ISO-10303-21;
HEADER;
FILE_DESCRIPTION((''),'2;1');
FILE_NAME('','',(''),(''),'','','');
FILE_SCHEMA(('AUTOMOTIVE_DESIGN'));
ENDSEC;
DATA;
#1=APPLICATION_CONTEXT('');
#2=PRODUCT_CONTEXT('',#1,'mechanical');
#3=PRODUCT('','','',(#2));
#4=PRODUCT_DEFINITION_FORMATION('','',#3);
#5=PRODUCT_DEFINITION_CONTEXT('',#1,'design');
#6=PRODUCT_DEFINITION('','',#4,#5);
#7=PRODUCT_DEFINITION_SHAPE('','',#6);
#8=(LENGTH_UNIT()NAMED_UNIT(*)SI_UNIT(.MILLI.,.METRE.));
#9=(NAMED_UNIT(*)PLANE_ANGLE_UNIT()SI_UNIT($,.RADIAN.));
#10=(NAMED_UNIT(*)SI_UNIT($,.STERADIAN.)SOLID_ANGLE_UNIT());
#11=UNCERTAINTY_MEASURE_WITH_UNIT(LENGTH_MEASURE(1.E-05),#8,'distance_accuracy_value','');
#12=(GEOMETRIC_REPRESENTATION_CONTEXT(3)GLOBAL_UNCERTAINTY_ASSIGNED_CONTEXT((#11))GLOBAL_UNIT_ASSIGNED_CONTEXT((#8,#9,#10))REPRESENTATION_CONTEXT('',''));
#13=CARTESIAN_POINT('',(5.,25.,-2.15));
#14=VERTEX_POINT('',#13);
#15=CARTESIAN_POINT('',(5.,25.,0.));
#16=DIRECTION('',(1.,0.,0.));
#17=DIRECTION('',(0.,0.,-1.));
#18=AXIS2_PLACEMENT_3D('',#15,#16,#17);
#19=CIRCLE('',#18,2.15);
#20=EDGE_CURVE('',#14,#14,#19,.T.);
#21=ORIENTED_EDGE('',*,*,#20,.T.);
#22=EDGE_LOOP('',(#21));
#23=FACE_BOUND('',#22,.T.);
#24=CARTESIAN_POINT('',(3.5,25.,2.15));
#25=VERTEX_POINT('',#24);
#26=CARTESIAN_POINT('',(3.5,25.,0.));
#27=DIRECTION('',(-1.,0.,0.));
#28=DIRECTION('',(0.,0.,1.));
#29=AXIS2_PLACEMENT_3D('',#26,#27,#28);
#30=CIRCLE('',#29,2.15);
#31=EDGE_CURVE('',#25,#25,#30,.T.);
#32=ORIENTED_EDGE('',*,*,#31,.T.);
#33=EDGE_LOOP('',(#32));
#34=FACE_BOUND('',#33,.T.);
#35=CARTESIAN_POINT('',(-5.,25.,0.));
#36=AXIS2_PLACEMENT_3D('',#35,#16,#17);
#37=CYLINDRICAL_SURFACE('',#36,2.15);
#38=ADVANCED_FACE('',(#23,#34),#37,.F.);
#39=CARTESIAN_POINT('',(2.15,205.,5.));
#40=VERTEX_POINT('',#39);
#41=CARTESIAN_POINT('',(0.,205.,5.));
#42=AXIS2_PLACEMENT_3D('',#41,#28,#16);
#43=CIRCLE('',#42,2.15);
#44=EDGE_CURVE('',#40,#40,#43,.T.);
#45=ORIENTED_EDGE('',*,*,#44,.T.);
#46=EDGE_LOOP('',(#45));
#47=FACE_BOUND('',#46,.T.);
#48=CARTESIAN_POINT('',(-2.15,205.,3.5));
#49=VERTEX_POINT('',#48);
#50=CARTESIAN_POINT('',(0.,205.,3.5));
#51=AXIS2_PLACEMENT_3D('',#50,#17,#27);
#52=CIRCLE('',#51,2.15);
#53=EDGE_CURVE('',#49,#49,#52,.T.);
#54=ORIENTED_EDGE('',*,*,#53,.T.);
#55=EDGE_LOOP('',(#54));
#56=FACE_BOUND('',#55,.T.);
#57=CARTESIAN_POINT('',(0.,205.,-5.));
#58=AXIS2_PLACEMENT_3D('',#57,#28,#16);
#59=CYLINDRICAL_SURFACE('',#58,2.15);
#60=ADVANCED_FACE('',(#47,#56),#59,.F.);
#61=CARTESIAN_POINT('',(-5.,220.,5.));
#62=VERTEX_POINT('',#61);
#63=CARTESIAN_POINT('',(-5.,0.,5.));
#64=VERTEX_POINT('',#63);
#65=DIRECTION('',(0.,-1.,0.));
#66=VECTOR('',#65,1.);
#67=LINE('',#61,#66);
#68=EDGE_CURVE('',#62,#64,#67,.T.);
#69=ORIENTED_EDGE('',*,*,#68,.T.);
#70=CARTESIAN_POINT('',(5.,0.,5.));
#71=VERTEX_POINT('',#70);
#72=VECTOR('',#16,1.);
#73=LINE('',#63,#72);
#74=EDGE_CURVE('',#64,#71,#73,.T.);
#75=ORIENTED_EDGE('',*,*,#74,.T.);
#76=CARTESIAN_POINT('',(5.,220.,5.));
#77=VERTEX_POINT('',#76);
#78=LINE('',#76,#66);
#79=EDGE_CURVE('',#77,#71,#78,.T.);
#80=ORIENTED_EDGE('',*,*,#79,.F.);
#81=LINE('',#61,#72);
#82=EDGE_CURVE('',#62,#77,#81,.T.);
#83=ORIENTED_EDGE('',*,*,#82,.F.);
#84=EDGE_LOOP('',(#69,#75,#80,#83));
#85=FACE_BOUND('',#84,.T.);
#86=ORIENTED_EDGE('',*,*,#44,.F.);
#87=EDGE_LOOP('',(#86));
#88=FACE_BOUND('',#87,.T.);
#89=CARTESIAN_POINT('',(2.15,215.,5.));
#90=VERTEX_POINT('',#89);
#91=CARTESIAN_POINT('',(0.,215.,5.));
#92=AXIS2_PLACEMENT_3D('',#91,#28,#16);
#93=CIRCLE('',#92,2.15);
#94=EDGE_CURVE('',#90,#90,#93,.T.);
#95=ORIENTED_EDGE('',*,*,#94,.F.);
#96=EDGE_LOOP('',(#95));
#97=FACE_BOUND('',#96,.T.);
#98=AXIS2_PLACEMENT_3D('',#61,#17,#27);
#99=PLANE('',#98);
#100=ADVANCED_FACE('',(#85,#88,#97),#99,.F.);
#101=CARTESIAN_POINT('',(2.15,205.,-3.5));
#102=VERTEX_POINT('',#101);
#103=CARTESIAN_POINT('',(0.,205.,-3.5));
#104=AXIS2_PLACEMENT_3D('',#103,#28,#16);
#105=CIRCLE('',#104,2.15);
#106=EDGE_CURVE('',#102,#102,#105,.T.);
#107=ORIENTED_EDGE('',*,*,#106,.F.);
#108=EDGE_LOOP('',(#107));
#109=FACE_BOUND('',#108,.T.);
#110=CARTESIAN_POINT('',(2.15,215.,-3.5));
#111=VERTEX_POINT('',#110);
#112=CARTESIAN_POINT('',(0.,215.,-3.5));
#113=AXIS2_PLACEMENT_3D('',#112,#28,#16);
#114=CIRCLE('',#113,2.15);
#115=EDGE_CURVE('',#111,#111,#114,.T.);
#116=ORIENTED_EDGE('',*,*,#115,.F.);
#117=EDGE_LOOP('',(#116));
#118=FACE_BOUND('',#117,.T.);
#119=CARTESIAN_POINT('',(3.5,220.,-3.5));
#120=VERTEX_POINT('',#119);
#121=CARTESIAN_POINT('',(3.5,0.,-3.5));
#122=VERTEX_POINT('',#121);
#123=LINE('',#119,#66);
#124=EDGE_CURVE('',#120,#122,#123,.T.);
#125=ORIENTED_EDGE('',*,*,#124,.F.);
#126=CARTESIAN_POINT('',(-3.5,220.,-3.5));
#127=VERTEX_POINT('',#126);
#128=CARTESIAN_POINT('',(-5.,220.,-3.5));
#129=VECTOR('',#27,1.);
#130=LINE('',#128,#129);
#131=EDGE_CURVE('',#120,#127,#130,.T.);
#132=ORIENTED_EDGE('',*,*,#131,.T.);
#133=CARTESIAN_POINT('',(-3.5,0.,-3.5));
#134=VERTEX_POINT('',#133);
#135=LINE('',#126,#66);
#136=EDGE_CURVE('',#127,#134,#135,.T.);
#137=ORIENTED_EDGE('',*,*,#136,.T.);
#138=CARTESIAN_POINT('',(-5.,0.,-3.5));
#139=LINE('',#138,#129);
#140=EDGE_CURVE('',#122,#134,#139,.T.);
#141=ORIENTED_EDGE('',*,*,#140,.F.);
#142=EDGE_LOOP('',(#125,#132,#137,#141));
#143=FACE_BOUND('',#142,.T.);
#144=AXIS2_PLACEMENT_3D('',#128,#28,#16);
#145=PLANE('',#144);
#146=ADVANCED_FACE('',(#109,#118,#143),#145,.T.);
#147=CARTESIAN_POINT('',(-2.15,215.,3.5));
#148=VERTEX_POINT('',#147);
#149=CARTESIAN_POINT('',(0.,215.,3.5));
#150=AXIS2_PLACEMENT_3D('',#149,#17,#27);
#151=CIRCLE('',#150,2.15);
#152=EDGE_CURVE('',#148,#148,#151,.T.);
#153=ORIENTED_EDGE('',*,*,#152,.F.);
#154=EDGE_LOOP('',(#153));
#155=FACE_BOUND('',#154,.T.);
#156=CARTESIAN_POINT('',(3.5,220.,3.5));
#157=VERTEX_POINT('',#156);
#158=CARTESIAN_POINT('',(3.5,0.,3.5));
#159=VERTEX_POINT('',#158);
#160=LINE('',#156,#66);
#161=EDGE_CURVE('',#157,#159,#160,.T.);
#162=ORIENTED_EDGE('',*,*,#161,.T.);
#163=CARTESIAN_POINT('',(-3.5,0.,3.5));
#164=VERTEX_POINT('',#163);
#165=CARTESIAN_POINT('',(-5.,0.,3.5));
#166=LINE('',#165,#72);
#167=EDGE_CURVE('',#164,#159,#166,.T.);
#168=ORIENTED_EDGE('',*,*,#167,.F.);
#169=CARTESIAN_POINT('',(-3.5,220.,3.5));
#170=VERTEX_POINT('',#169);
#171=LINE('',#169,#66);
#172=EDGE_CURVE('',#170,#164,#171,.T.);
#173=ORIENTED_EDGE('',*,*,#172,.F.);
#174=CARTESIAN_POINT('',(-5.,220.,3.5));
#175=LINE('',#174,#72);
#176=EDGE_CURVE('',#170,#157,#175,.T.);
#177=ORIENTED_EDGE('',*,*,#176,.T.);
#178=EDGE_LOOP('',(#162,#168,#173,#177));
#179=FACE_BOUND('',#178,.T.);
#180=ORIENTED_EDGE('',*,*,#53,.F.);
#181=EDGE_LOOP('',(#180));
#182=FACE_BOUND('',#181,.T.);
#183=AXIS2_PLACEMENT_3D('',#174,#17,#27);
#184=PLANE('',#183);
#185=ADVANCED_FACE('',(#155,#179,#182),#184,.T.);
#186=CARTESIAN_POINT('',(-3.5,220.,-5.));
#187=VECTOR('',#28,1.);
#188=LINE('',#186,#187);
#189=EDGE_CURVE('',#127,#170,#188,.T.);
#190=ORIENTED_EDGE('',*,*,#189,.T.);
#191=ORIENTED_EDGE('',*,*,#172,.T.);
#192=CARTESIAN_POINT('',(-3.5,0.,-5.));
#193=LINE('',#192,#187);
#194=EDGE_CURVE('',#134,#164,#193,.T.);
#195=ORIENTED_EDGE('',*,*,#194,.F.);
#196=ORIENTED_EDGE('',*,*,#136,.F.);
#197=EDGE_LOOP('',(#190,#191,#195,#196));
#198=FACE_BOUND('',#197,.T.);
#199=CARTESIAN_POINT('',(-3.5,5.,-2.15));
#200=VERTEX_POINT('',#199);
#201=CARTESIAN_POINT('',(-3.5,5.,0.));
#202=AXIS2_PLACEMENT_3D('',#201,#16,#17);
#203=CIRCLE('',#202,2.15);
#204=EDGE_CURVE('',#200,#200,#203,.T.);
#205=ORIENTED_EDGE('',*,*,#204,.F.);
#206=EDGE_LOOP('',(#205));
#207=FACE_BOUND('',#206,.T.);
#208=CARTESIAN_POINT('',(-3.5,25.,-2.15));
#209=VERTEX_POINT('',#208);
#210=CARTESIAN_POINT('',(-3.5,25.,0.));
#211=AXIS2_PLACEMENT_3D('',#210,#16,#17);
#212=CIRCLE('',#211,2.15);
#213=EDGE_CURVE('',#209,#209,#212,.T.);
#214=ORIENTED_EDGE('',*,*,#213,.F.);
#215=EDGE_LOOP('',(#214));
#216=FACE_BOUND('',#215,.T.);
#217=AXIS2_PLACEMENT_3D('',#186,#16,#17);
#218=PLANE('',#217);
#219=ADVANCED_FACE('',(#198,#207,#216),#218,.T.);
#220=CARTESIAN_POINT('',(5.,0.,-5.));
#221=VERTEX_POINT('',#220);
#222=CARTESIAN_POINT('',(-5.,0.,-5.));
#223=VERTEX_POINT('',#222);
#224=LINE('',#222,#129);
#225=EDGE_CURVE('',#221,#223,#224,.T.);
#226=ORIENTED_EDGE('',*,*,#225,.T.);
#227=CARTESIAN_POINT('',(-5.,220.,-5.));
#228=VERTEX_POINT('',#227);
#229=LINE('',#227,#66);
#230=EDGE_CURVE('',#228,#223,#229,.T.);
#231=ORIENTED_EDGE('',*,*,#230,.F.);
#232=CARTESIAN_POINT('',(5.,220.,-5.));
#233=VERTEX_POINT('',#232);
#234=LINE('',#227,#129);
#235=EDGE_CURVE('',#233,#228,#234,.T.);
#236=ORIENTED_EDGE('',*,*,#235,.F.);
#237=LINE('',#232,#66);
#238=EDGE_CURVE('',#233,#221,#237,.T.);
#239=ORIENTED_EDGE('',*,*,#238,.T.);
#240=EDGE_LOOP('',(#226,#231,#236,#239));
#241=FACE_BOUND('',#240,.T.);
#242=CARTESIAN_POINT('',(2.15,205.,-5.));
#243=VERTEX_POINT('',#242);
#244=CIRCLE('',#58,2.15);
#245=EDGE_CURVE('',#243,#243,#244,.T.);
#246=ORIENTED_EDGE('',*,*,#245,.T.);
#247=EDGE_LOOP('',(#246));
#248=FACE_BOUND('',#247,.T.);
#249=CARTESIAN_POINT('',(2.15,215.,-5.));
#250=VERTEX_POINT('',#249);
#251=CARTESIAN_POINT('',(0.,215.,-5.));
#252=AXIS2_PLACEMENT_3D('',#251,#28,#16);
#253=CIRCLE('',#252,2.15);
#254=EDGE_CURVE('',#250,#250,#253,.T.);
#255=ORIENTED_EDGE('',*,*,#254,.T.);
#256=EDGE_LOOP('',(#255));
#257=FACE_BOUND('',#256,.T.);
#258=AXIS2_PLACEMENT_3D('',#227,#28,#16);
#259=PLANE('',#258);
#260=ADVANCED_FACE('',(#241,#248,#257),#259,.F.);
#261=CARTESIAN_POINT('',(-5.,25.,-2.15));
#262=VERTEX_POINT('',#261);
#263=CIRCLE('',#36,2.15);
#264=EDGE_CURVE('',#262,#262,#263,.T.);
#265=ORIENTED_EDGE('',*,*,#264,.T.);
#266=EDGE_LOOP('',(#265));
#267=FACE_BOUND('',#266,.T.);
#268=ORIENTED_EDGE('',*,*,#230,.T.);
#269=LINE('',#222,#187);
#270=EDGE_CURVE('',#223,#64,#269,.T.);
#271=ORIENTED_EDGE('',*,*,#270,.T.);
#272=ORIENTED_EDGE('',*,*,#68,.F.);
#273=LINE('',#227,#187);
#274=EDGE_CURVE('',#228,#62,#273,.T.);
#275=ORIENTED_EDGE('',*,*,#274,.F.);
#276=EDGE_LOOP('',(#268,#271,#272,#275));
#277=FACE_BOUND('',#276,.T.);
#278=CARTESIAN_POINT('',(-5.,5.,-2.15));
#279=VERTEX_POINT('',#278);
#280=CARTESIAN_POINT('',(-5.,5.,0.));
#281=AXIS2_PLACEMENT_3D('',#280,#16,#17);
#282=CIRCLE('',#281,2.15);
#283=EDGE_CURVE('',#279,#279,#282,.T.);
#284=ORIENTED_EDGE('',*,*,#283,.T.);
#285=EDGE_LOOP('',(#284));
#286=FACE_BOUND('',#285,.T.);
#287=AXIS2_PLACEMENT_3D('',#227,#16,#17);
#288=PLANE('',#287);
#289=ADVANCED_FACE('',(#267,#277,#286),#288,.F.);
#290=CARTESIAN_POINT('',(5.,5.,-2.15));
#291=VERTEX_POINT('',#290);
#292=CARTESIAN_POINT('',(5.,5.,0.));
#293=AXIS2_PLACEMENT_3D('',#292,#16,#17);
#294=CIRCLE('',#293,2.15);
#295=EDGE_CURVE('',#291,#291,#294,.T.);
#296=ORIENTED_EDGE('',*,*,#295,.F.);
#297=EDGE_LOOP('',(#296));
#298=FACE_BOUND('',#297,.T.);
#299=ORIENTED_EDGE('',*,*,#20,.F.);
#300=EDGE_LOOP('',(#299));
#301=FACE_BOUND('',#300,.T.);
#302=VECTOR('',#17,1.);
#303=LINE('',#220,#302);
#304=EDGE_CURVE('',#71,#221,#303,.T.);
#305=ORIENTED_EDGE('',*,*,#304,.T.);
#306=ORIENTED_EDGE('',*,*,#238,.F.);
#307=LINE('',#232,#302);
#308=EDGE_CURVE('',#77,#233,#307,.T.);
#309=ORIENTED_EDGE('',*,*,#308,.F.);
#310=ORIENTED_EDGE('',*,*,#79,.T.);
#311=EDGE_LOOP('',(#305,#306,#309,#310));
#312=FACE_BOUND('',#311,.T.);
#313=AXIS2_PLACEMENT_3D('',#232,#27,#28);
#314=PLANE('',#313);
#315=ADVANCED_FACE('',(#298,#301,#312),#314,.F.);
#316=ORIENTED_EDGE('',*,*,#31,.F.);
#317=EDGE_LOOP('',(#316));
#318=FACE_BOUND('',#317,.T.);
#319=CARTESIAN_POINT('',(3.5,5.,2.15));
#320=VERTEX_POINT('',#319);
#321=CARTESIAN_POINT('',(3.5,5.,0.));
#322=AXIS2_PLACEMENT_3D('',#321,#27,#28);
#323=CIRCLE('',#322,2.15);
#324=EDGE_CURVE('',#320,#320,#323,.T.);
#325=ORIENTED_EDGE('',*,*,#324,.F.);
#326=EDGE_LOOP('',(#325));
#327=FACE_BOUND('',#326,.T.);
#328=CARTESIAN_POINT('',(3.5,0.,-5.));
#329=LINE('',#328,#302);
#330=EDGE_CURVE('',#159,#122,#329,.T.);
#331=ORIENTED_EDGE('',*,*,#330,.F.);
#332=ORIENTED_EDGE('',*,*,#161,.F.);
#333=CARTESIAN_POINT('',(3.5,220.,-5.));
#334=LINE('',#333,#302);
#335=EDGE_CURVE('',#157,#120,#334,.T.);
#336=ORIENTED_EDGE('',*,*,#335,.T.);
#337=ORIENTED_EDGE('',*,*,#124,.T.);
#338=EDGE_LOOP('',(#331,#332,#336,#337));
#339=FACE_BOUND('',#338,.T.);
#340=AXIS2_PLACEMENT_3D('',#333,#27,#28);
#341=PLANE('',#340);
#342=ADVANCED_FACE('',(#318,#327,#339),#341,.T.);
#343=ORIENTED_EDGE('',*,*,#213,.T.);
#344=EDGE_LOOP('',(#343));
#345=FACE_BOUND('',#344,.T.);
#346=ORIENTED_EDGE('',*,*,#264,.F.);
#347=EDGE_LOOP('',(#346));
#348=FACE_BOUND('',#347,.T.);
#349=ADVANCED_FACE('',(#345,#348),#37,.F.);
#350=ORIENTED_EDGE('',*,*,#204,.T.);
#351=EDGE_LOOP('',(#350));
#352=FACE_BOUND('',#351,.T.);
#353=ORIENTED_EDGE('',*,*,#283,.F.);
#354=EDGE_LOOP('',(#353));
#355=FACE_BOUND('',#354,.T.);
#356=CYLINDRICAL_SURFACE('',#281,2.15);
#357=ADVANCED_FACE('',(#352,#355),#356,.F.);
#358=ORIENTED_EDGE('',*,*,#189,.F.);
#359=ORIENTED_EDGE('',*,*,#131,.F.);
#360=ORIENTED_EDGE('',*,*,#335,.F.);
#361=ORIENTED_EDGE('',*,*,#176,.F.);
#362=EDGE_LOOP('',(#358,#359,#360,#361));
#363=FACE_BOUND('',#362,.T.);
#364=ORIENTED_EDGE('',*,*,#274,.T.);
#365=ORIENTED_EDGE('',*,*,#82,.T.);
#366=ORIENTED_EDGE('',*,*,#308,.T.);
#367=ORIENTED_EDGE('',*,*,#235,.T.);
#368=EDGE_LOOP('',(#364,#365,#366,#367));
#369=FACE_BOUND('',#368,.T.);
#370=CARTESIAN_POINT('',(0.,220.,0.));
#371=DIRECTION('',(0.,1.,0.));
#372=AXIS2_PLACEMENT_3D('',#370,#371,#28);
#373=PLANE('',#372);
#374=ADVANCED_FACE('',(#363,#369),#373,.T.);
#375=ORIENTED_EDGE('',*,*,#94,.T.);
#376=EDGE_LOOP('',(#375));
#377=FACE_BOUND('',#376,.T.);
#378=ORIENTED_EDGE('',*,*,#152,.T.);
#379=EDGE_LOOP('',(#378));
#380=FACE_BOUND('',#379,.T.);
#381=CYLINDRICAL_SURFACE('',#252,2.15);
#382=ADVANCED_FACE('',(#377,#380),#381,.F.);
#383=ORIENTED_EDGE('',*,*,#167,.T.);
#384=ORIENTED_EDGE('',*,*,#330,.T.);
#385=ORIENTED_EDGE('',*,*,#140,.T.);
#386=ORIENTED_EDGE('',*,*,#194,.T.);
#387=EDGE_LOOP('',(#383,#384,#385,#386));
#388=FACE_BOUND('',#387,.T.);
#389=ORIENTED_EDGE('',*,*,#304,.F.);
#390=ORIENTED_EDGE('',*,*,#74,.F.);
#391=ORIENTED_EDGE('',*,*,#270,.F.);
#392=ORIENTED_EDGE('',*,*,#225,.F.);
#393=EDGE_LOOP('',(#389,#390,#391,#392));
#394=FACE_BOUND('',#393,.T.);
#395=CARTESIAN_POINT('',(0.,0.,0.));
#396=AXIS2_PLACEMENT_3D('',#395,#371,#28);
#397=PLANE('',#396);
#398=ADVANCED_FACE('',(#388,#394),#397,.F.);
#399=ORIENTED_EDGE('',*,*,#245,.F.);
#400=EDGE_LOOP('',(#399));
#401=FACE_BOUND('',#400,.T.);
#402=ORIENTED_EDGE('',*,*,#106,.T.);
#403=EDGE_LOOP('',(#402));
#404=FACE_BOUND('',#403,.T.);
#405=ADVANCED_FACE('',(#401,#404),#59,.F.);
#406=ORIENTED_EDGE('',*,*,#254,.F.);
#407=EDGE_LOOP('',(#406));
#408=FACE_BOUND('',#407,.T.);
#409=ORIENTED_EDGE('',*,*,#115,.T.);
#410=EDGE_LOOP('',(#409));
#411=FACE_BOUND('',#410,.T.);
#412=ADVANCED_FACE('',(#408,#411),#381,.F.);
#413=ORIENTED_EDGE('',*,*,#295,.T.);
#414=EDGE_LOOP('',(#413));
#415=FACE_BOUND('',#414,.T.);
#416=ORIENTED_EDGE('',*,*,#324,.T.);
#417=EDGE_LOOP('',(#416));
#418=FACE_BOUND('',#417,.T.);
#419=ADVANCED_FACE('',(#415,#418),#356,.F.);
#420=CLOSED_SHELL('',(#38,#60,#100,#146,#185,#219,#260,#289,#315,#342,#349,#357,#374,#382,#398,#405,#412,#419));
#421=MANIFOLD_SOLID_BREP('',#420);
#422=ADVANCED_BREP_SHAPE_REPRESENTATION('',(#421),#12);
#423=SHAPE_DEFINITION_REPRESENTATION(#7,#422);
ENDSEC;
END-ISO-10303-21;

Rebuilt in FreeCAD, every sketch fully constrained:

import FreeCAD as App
import Part
import Sketcher


def add_polygon(sketch, points):
    """Adds a closed chain of lines whose ends are joined by coincident constraints."""
    first, n = sketch.GeometryCount, len(points)
    for a, b in zip(points, points[1:] + points[:1]):
        sketch.addGeometry(Part.LineSegment(App.Vector(*a, 0), App.Vector(*b, 0)), False)
    for i in range(n):
        sketch.addConstraint(Sketcher.Constraint("Coincident", first + i, 2, first + (i + 1) % n, 1))

doc = App.newDocument("Part")
body = doc.addObject("PartDesign::Body", "Body")

sketch1 = doc.addObject("Sketcher::SketchObject", "Sketch")
body.addObject(sketch1)
sketch1.AttachmentSupport = (doc.XZ_Plane, [""])
sketch1.MapMode = "FlatFace"
add_polygon(sketch1, [(-5, -5), (-5, 5), (5, 5), (5, -5)])
add_polygon(sketch1, [(4, 4), (-4, 4), (-4, -4), (4, -4)])
sketch1.addConstraint([
    Sketcher.Constraint("Vertical", 0),
    Sketcher.Constraint("Horizontal", 1),
    Sketcher.Constraint("Vertical", 2),
    Sketcher.Constraint("Horizontal", 3),
    Sketcher.Constraint("Horizontal", 4),
    Sketcher.Constraint("Vertical", 5),
    Sketcher.Constraint("Horizontal", 6),
    Sketcher.Constraint("Vertical", 7),
    Sketcher.Constraint("Symmetric", 0, 2, 2, 2, -1, 1),
    Sketcher.Constraint("Symmetric", 4, 2, 6, 2, -1, 1),
    Sketcher.Constraint("Equal", 3, 0),
    Sketcher.Constraint("Equal", 6, 5),
    Sketcher.Constraint("DistanceX", 1, 1, 1, 2, 10.0),
    Sketcher.Constraint("DistanceX", 4, 2, 4, 1, 7.0),
])
pad1 = doc.addObject("PartDesign::Pad", "Pad")
body.addObject(pad1)
pad1.Profile = sketch1
pad1.Length = 220
pad1.Reversed = True

sketch2 = doc.addObject("Sketcher::SketchObject", "Sketch001")
body.addObject(sketch2)
sketch2.AttachmentSupport = (doc.XY_Plane, [""])
sketch2.MapMode = "FlatFace"
sketch2.AttachmentOffset = App.Placement(App.Vector(0, 0, 5), App.Rotation())
sketch2.addGeometry([
    Part.Circle(App.Vector(0, 205, 0), App.Vector(0, 0, 1), 2.1),
    Part.Circle(App.Vector(0, 215, 0), App.Vector(0, 0, 1), 2.1),
], False)
sketch2.addConstraint([
    Sketcher.Constraint("Equal", 0, 1),
    Sketcher.Constraint("PointOnObject", 0, 3, -2),
    Sketcher.Constraint("PointOnObject", 1, 3, -2),
    Sketcher.Constraint("Diameter", 0, 4.3),
    Sketcher.Constraint("DistanceY", -1, 1, 0, 3, 205.0),
    Sketcher.Constraint("DistanceY", -1, 1, 1, 3, 215.0),
])
pocket1 = doc.addObject("PartDesign::Pocket", "Pocket")
body.addObject(pocket1)
pocket1.Profile = sketch2
pocket1.Type = "ThroughAll"

sketch3 = doc.addObject("Sketcher::SketchObject", "Sketch002")
body.addObject(sketch3)
sketch3.AttachmentSupport = (doc.YZ_Plane, [""])
sketch3.MapMode = "FlatFace"
sketch3.AttachmentOffset = App.Placement(App.Vector(0, 0, 5), App.Rotation())
sketch3.addGeometry([
    Part.Circle(App.Vector(5, 0, 0), App.Vector(0, 0, 1), 2.1),
    Part.Circle(App.Vector(25, 0, 0), App.Vector(0, 0, 1), 2.1),
], False)
sketch3.addConstraint([
    Sketcher.Constraint("Equal", 0, 1),
    Sketcher.Constraint("PointOnObject", 0, 3, -1),
    Sketcher.Constraint("PointOnObject", 1, 3, -1),
    Sketcher.Constraint("Diameter", 0, 4.3),
    Sketcher.Constraint("DistanceX", -1, 1, 0, 3, 5.0),
    Sketcher.Constraint("DistanceX", -1, 1, 1, 3, 25.0),
])
pocket2 = doc.addObject("PartDesign::Pocket", "Pocket001")
body.addObject(pocket2)
pocket2.Profile = sketch3
pocket2.Type = "ThroughAll"

doc.recompute()
